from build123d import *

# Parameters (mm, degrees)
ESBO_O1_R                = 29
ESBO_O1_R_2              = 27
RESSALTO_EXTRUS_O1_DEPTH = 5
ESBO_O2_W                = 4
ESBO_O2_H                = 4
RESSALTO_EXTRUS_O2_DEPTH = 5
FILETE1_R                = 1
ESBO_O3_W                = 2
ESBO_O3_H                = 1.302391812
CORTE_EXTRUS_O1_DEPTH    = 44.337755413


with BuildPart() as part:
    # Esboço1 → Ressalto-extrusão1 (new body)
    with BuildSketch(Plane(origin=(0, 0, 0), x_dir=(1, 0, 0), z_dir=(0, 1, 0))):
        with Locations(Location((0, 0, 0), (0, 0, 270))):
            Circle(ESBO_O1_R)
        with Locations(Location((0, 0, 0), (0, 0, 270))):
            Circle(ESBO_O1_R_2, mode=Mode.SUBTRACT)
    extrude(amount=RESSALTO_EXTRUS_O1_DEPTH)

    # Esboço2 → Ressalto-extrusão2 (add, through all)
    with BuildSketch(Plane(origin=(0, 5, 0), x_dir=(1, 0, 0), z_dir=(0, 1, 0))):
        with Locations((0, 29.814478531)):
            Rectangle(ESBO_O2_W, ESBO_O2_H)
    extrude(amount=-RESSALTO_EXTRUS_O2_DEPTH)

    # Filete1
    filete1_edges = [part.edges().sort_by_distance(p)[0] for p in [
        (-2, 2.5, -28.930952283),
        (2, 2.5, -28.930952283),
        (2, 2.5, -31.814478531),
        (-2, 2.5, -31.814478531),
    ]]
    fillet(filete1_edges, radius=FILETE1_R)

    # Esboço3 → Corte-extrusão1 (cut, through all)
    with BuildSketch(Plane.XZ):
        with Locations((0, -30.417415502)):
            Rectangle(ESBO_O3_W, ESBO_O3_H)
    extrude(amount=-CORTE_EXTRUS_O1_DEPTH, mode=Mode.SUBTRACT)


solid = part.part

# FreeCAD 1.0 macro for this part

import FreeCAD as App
import Part
import Sketcher


def edges_at(feature, points):
    """Names of the edges that pass closest to the given points."""
    edges = feature.Shape.Edges
    near = lambda p: min(range(len(edges)), key=lambda i: edges[i].distToShape(Part.Vertex(*p))[0])
    return sorted({f"Edge{near(p) + 1}" for p in points})

doc = App.newDocument("Part")
params = doc.addObject("Spreadsheet::Sheet", "Params")
for row, (alias, value) in enumerate([
    ("sketch1_diameter", "58 mm"),
    ("sketch1_diameter2", "54 mm"),
    ("pad1_length", "5 mm"),
    ("sketch2_width", "4 mm"),
    ("pad2_length", "5 mm"),
    ("fillet_radius", "1 mm"),
    ("sketch3_width", "2 mm"),
], start=1):
    params.set(f"A{row}", alias)
    params.set(f"B{row}", "=" + value)
    params.setAlias(f"B{row}", alias)

body = doc.addObject("PartDesign::Body", "Body")

sketch1 = body.newObject("Sketcher::SketchObject", "Sketch")
sketch1.AttachmentSupport = (doc.getObject("XZ_Plane"), [""])
sketch1.MapMode = "FlatFace"
sketch1.addGeometry(Part.Circle(App.Vector(0, 0, 0), App.Vector(0, 0, 1), 29), False)
sketch1.addGeometry(Part.Circle(App.Vector(0, 0, 0), App.Vector(0, 0, 1), 27), False)
sketch1.addConstraint(Sketcher.Constraint("Coincident", 0, 3, -1, 1))
sketch1.addConstraint(Sketcher.Constraint("Coincident", 1, 3, -1, 1))
sketch1.addConstraint(Sketcher.Constraint("Diameter", 0, 58.0))
sketch1.addConstraint(Sketcher.Constraint("Diameter", 1, 54.0))
sketch1.setExpression("Constraints[2]", "Params.sketch1_diameter")
sketch1.setExpression("Constraints[3]", "Params.sketch1_diameter2")
pad1 = body.newObject("PartDesign::Pad", "Pad")
pad1.Profile = sketch1
pad1.setExpression("Length", "Params.pad1_length")
pad1.Reversed = True

sketch2 = body.newObject("Sketcher::SketchObject", "Sketch001")
sketch2.AttachmentSupport = (doc.getObject("XZ_Plane"), [""])
sketch2.MapMode = "FlatFace"
sketch2.AttachmentOffset = App.Placement(App.Vector(0, 0, -5), App.Rotation())
sketch2.addGeometry(Part.LineSegment(App.Vector(-2, -31.814479, 0), App.Vector(-2, -27.814479, 0)), False)
sketch2.addGeometry(Part.LineSegment(App.Vector(-2, -27.814479, 0), App.Vector(2, -27.814479, 0)), False)
sketch2.addGeometry(Part.LineSegment(App.Vector(2, -27.814479, 0), App.Vector(2, -31.814479, 0)), False)
sketch2.addGeometry(Part.LineSegment(App.Vector(2, -31.814479, 0), App.Vector(-2, -31.814479, 0)), False)
sketch2.addConstraint(Sketcher.Constraint("Coincident", 0, 2, 1, 1))
sketch2.addConstraint(Sketcher.Constraint("Coincident", 1, 2, 2, 1))
sketch2.addConstraint(Sketcher.Constraint("Coincident", 2, 2, 3, 1))
sketch2.addConstraint(Sketcher.Constraint("Coincident", 3, 2, 0, 1))
sketch2.addConstraint(Sketcher.Constraint("Vertical", 0))
sketch2.addConstraint(Sketcher.Constraint("Horizontal", 1))
sketch2.addConstraint(Sketcher.Constraint("Vertical", 2))
sketch2.addConstraint(Sketcher.Constraint("Horizontal", 3))
sketch2.addConstraint(Sketcher.Constraint("Equal", 3, 0))
sketch2.addConstraint(Sketcher.Constraint("DistanceX", 1, 1, 1, 2, 4.0))
sketch2.addConstraint(Sketcher.Constraint("DistanceX", 0, 2, -1, 1, 2.0))
sketch2.addConstraint(Sketcher.Constraint("DistanceY", 0, 2, -1, 1, 27.814479))
sketch2.setExpression("Constraints[9]", "Params.sketch2_width")
pad2 = body.newObject("PartDesign::Pad", "Pad001")
pad2.Profile = sketch2
pad2.setExpression("Length", "Params.pad2_length")
doc.recompute()

fillet = body.newObject("PartDesign::Fillet", "Fillet")
fillet.Base = (pad2, edges_at(pad2, [
    (-2, 2.5, -28.931),
    (2, 2.5, -28.931),
    (2, 2.5, -31.814),
    (-2, 2.5, -31.814),
]))
fillet.setExpression("Radius", "Params.fillet_radius")

sketch3 = body.newObject("Sketcher::SketchObject", "Sketch002")
sketch3.AttachmentSupport = (doc.getObject("XZ_Plane"), [""])
sketch3.MapMode = "FlatFace"
sketch3.addGeometry(Part.LineSegment(App.Vector(-1, -29.76622, 0), App.Vector(-1, -31.068611, 0)), False)
sketch3.addGeometry(Part.LineSegment(App.Vector(-1, -31.068611, 0), App.Vector(1, -31.068611, 0)), False)
sketch3.addGeometry(Part.LineSegment(App.Vector(1, -31.068611, 0), App.Vector(1, -29.76622, 0)), False)
sketch3.addGeometry(Part.LineSegment(App.Vector(1, -29.76622, 0), App.Vector(-1, -29.76622, 0)), False)
sketch3.addConstraint(Sketcher.Constraint("Coincident", 0, 2, 1, 1))
sketch3.addConstraint(Sketcher.Constraint("Coincident", 1, 2, 2, 1))
sketch3.addConstraint(Sketcher.Constraint("Coincident", 2, 2, 3, 1))
sketch3.addConstraint(Sketcher.Constraint("Coincident", 3, 2, 0, 1))
sketch3.addConstraint(Sketcher.Constraint("Vertical", 0))
sketch3.addConstraint(Sketcher.Constraint("Horizontal", 1))
sketch3.addConstraint(Sketcher.Constraint("Vertical", 2))
sketch3.addConstraint(Sketcher.Constraint("Horizontal", 3))
sketch3.addConstraint(Sketcher.Constraint("DistanceX", 1, 1, 1, 2, 2.0))
sketch3.addConstraint(Sketcher.Constraint("DistanceX", 0, 2, -1, 1, 1.0))
sketch3.addConstraint(Sketcher.Constraint("DistanceY", 0, 2, 0, 1, 1.302392))
sketch3.addConstraint(Sketcher.Constraint("DistanceY", 0, 2, -1, 1, 31.068611))
sketch3.setExpression("Constraints[8]", "Params.sketch3_width")
pocket1 = body.newObject("PartDesign::Pocket", "Pocket")
pocket1.Profile = sketch3
pocket1.Type = "ThroughAll"

doc.recompute()
